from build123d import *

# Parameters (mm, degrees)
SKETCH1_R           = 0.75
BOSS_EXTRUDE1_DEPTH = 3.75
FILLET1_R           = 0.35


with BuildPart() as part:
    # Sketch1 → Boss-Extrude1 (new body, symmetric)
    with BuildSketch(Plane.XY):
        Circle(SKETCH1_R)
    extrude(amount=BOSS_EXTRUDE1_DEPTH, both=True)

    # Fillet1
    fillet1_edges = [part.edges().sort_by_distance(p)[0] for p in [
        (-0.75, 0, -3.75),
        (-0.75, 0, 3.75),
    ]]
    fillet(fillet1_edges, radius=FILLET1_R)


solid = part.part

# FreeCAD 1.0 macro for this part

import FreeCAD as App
import Part
import Sketcher
Q = App.Units.Quantity


def edges_at(feature, points):
    """Names of the edges that pass closest to the given points."""
    edges = feature.Shape.Edges
    near = lambda p: min(range(len(edges)), key=lambda i: edges[i].distToShape(Part.Vertex(*p))[0])
    return sorted({f"Edge{near(p) + 1}" for p in points})

doc = App.newDocument("Part")
body = doc.addObject("PartDesign::Body", "Body")

sketch1 = body.newObject("Sketcher::SketchObject", "Sketch")
sketch1.AttachmentSupport = (doc.getObject("XY_Plane"), [""])
sketch1.MapMode = "FlatFace"
sketch1.addGeometry(Part.Circle(App.Vector(0, 0, 0), App.Vector(0, 0, 1), 0.8), False)
sketch1.addConstraint([
    Sketcher.Constraint("Coincident", 0, 3, -1, 1),
    Sketcher.Constraint("Diameter", 0, Q("1.5 mm")),
])
pad1 = body.newObject("PartDesign::Pad", "Pad")
pad1.Profile = sketch1
pad1.Length = 7.5
pad1.Midplane = True
doc.recompute()

fillet = body.newObject("PartDesign::Fillet", "Fillet")
fillet.Base = (pad1, edges_at(pad1, [(-0.75, 0, -3.75), (-0.75, 0, 3.75)]))
fillet.Radius = 0.35

doc.recompute()
